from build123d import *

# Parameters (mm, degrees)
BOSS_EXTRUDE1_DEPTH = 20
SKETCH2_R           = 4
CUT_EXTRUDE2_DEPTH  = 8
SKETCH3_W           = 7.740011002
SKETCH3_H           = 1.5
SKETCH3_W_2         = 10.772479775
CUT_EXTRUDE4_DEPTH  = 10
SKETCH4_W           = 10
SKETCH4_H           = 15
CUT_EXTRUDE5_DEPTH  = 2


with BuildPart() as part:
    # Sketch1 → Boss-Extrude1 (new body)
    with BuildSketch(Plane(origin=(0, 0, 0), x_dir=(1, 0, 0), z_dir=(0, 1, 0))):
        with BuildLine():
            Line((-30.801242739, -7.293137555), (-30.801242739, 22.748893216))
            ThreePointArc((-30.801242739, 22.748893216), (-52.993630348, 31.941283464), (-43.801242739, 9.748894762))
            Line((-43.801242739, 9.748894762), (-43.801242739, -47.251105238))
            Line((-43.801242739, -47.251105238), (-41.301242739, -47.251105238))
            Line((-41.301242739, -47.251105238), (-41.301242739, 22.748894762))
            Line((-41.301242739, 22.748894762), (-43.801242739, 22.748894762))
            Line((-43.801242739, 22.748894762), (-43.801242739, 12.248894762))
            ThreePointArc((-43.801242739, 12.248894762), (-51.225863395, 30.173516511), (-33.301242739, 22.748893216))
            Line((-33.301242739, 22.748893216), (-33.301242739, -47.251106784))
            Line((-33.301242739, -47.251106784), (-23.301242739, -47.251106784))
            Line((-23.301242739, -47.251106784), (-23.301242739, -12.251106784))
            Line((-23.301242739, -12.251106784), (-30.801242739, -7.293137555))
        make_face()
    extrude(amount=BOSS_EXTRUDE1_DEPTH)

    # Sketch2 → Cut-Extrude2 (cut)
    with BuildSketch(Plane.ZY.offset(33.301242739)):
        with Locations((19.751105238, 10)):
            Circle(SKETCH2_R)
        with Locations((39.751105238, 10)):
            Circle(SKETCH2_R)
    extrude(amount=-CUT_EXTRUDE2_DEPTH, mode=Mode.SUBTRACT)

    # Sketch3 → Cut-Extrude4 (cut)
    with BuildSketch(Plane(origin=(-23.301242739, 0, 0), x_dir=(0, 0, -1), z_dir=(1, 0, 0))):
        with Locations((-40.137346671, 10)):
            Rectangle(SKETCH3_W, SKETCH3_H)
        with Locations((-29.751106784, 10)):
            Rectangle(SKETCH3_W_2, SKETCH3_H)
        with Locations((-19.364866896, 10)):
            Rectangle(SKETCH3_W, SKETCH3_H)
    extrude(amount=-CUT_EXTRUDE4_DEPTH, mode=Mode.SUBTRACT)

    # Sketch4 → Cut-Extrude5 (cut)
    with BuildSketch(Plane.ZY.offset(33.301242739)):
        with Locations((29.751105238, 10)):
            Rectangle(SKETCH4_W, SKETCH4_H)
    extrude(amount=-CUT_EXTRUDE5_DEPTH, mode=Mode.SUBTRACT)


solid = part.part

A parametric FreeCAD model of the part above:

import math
import FreeCAD as App
import Part
import Sketcher
from FreeCAD import Vector


def add_polygon(sketch, points):
    """Adds a closed chain of lines whose ends are joined by coincident constraints."""
    first, n = sketch.GeometryCount, len(points)
    for a, b in zip(points, points[1:] + points[:1]):
        sketch.addGeometry(Part.LineSegment(App.Vector(*a, 0), App.Vector(*b, 0)), False)
    for i in range(n):
        sketch.addConstraint(Sketcher.Constraint("Coincident", first + i, 2, first + (i + 1) % n, 1))

doc = App.newDocument("Part")
body = doc.addObject("PartDesign::Body", "Body")

# Sketch on XZ plane
sketch1 = body.newObject("Sketcher::SketchObject", "Sketch")
sketch1.AttachmentSupport = (doc.getObject("XZ_Plane"), [""])
sketch1.MapMode = "FlatFace"
sketch1.addGeometry(Part.LineSegment(Vector(-30.8, 7.3, 0), Vector(-30.8, -22.7, 0)), False)
sketch1.addGeometry(Part.ArcOfCircle(Part.Circle(Vector(-43.8, -22.7, 0), Vector(0, 0, 1), 13), math.radians(90), math.radians(360)), False)
sketch1.addGeometry(Part.LineSegment(Vector(-43.8, -9.7, 0), Vector(-43.8, 47.3, 0)), False)
sketch1.addGeometry(Part.LineSegment(Vector(-43.8, 47.3, 0), Vector(-41.3, 47.3, 0)), False)
sketch1.addGeometry(Part.LineSegment(Vector(-41.3, 47.3, 0), Vector(-41.3, -22.7, 0)), False)
sketch1.addGeometry(Part.LineSegment(Vector(-41.3, -22.7, 0), Vector(-43.8, -22.7, 0)), False)
sketch1.addGeometry(Part.LineSegment(Vector(-43.8, -22.7, 0), Vector(-43.8, -12.2, 0)), False)
sketch1.addGeometry(Part.ArcOfCircle(Part.Circle(Vector(-43.8, -22.7, 0), Vector(0, 0, 1), 10.5), math.radians(90), math.radians(360)), False)
sketch1.addGeometry(Part.LineSegment(Vector(-33.3, -22.7, 0), Vector(-33.3, 47.3, 0)), False)
sketch1.addGeometry(Part.LineSegment(Vector(-33.3, 47.3, 0), Vector(-23.3, 47.3, 0)), False)
sketch1.addGeometry(Part.LineSegment(Vector(-23.3, 47.3, 0), Vector(-23.3, 12.3, 0)), False)
sketch1.addGeometry(Part.LineSegment(Vector(-23.3, 12.3, 0), Vector(-30.8, 7.3, 0)), False)
sketch1.addConstraint(Sketcher.Constraint("Tangent", 0, 2, 1, 2))
sketch1.addConstraint(Sketcher.Constraint("Coincident", 1, 1, 2, 1))
sketch1.addConstraint(Sketcher.Constraint("Coincident", 2, 2, 3, 1))
sketch1.addConstraint(Sketcher.Constraint("Coincident", 3, 2, 4, 1))
sketch1.addConstraint(Sketcher.Constraint("Coincident", 4, 2, 5, 1))
sketch1.addConstraint(Sketcher.Constraint("Coincident", 5, 2, 6, 1))
sketch1.addConstraint(Sketcher.Constraint("Coincident", 6, 2, 7, 1))
sketch1.addConstraint(Sketcher.Constraint("Tangent", 7, 2, 8, 1))
sketch1.addConstraint(Sketcher.Constraint("Coincident", 8, 2, 9, 1))
sketch1.addConstraint(Sketcher.Constraint("Coincident", 9, 2, 10, 1))
sketch1.addConstraint(Sketcher.Constraint("Coincident", 10, 2, 11, 1))
sketch1.addConstraint(Sketcher.Constraint("Coincident", 11, 2, 0, 1))
sketch1.addConstraint(Sketcher.Constraint("Vertical", 0))
sketch1.addConstraint(Sketcher.Constraint("Vertical", 2))
sketch1.addConstraint(Sketcher.Constraint("Horizontal", 3))
sketch1.addConstraint(Sketcher.Constraint("Vertical", 4))
sketch1.addConstraint(Sketcher.Constraint("Horizontal", 5))
sketch1.addConstraint(Sketcher.Constraint("Vertical", 6))
sketch1.addConstraint(Sketcher.Constraint("Vertical", 8))
sketch1.addConstraint(Sketcher.Constraint("Horizontal", 9))
sketch1.addConstraint(Sketcher.Constraint("Vertical", 10))
sketch1.addConstraint(Sketcher.Constraint("Coincident", 7, 3, 1, 3))
sketch1.addConstraint(Sketcher.Constraint("Coincident", 5, 2, 1, 3))
sketch1.addConstraint(Sketcher.Constraint("Horizontal", 3, 2, 8, 2))
sketch1.addConstraint(Sketcher.Constraint("Vertical", 7, 3, 1, 1))
sketch1.addConstraint(Sketcher.Constraint("Radius", 1, 13.0))
sketch1.addConstraint(Sketcher.Constraint("Radius", 7, 10.5))
sketch1.addConstraint(Sketcher.Constraint("DistanceX", 9, 1, 9, 2, 10.0))
sketch1.addConstraint(Sketcher.Constraint("DistanceY", 2, 1, 2, 2, 57.0))
sketch1.addConstraint(Sketcher.Constraint("DistanceY", 10, 2, 10, 1, 35.0))
sketch1.addConstraint(Sketcher.Constraint("DistanceX", 3, 1, 3, 2, 2.5))
sketch1.addConstraint(Sketcher.Constraint("DistanceY", 0, 2, 0, 1, 30.042031))
sketch1.addConstraint(Sketcher.Constraint("DistanceX", 1, 3, -1, 1, 43.801243))
sketch1.addConstraint(Sketcher.Constraint("DistanceY", 1, 3, -1, 1, 22.748895))
pad1 = body.newObject("PartDesign::Pad", "Pad")
pad1.Profile = sketch1
pad1.Length = 20
pad1.Reversed = True

# Sketch on YZ plane
sketch2 = body.newObject("Sketcher::SketchObject", "Sketch001")
sketch2.AttachmentSupport = (doc.getObject("YZ_Plane"), [""])
sketch2.MapMode = "FlatFace"
sketch2.AttachmentOffset = App.Placement(Vector(0, 0, -33.301243), App.Rotation())
sketch2.addGeometry(Part.Circle(Vector(10, 19.8, 0), Vector(0, 0, 1), 4), False)
sketch2.addGeometry(Part.Circle(Vector(10, 39.8, 0), Vector(0, 0, 1), 4), False)
sketch2.addConstraint(Sketcher.Constraint("Equal", 0, 1))
sketch2.addConstraint(Sketcher.Constraint("Vertical", 0, 3, 1, 3))
sketch2.addConstraint(Sketcher.Constraint("Diameter", 0, 8.0))
sketch2.addConstraint(Sketcher.Constraint("DistanceX", -1, 1, 0, 3, 10.0))
sketch2.addConstraint(Sketcher.Constraint("DistanceY", 0, 3, 1, 3, 20.0))
sketch2.addConstraint(Sketcher.Constraint("DistanceY", -1, 1, 0, 3, 19.751105))
pocket1 = body.newObject("PartDesign::Pocket", "Pocket")
pocket1.Profile = sketch2
pocket1.Length = 8
pocket1.Reversed = True

# Sketch on YZ plane
sketch3 = body.newObject("Sketcher::SketchObject", "Sketch002")
sketch3.AttachmentSupport = (doc.getObject("YZ_Plane"), [""])
sketch3.MapMode = "FlatFace"
sketch3.AttachmentOffset = App.Placement(Vector(0, 0, -23.301243), App.Rotation())
add_polygon(sketch3, [(10.8, 44), (9.2, 44), (9.2, 36.3), (10.8, 36.3)])  # lines 0-3
add_polygon(sketch3, [(10.8, 35.1), (9.2, 35.1), (9.2, 24.4), (10.8, 24.4)])  # lines 4-7
add_polygon(sketch3, [(10.8, 23.2), (9.2, 23.2), (9.2, 15.5), (10.8, 15.5)])  # lines 8-11
sketch3.addConstraint(Sketcher.Constraint("Horizontal", 0))
sketch3.addConstraint(Sketcher.Constraint("Vertical", 1))
sketch3.addConstraint(Sketcher.Constraint("Horizontal", 2))
sketch3.addConstraint(Sketcher.Constraint("Vertical", 3))
sketch3.addConstraint(Sketcher.Constraint("Horizontal", 4))
sketch3.addConstraint(Sketcher.Constraint("Vertical", 5))
sketch3.addConstraint(Sketcher.Constraint("Horizontal", 6))
sketch3.addConstraint(Sketcher.Constraint("Vertical", 7))
sketch3.addConstraint(Sketcher.Constraint("Horizontal", 8))
sketch3.addConstraint(Sketcher.Constraint("Vertical", 9))
sketch3.addConstraint(Sketcher.Constraint("Horizontal", 10))
sketch3.addConstraint(Sketcher.Constraint("Vertical", 11))
sketch3.addConstraint(Sketcher.Constraint("Vertical", 1, 2, 4, 2))
sketch3.addConstraint(Sketcher.Constraint("Vertical", 3, 2, 6, 2))
sketch3.addConstraint(Sketcher.Constraint("Vertical", 5, 2, 8, 2))
sketch3.addConstraint(Sketcher.Constraint("Vertical", 7, 2, 10, 2))
sketch3.addConstraint(Sketcher.Constraint("Equal", 3, 9))
sketch3.addConstraint(Sketcher.Constraint("DistanceX", 0, 2, 0, 1, 1.5))
sketch3.addConstraint(Sketcher.Constraint("DistanceX", -1, 1, 0, 2, 9.25))
sketch3.addConstraint(Sketcher.Constraint("DistanceY", 1, 2, 1, 1, 7.740011))
sketch3.addConstraint(Sketcher.Constraint("DistanceY", 5, 2, 5, 1, 10.77248))
sketch3.addConstraint(Sketcher.Constraint("DistanceY", -1, 1, 1, 2, 36.267341))
sketch3.addConstraint(Sketcher.Constraint("DistanceY", -1, 1, 9, 2, 15.494861))
sketch3.addConstraint(Sketcher.Constraint("DistanceY", -1, 1, 4, 2, 35.137347))
pocket2 = body.newObject("PartDesign::Pocket", "Pocket001")
pocket2.Profile = sketch3
pocket2.Length = 10

# Sketch on YZ plane
sketch4 = body.newObject("Sketcher::SketchObject", "Sketch003")
sketch4.AttachmentSupport = (doc.getObject("YZ_Plane"), [""])
sketch4.MapMode = "FlatFace"
sketch4.AttachmentOffset = App.Placement(Vector(0, 0, -33.301243), App.Rotation())
add_polygon(sketch4, [(18, 25), (2, 25), (2, 35), (18, 35)])  # lines 0-3
sketch4.addConstraint(Sketcher.Constraint("Horizontal", 0))
sketch4.addConstraint(Sketcher.Constraint("Vertical", 1))
sketch4.addConstraint(Sketcher.Constraint("Horizontal", 2))
sketch4.addConstraint(Sketcher.Constraint("Vertical", 3))
sketch4.addConstraint(Sketcher.Constraint("DistanceX", 0, 2, 0, 1, 15.0))
sketch4.addConstraint(Sketcher.Constraint("DistanceY", 1, 1, 1, 2, 10.0))
sketch4.addConstraint(Sketcher.Constraint("DistanceX", -1, 1, 0, 2, 2.5))
sketch4.addConstraint(Sketcher.Constraint("DistanceY", -1, 1, 0, 2, 24.751105))
pocket3 = body.newObject("PartDesign::Pocket", "Pocket002")
pocket3.Profile = sketch4
pocket3.Length = 2
pocket3.Reversed = True

doc.recompute()
